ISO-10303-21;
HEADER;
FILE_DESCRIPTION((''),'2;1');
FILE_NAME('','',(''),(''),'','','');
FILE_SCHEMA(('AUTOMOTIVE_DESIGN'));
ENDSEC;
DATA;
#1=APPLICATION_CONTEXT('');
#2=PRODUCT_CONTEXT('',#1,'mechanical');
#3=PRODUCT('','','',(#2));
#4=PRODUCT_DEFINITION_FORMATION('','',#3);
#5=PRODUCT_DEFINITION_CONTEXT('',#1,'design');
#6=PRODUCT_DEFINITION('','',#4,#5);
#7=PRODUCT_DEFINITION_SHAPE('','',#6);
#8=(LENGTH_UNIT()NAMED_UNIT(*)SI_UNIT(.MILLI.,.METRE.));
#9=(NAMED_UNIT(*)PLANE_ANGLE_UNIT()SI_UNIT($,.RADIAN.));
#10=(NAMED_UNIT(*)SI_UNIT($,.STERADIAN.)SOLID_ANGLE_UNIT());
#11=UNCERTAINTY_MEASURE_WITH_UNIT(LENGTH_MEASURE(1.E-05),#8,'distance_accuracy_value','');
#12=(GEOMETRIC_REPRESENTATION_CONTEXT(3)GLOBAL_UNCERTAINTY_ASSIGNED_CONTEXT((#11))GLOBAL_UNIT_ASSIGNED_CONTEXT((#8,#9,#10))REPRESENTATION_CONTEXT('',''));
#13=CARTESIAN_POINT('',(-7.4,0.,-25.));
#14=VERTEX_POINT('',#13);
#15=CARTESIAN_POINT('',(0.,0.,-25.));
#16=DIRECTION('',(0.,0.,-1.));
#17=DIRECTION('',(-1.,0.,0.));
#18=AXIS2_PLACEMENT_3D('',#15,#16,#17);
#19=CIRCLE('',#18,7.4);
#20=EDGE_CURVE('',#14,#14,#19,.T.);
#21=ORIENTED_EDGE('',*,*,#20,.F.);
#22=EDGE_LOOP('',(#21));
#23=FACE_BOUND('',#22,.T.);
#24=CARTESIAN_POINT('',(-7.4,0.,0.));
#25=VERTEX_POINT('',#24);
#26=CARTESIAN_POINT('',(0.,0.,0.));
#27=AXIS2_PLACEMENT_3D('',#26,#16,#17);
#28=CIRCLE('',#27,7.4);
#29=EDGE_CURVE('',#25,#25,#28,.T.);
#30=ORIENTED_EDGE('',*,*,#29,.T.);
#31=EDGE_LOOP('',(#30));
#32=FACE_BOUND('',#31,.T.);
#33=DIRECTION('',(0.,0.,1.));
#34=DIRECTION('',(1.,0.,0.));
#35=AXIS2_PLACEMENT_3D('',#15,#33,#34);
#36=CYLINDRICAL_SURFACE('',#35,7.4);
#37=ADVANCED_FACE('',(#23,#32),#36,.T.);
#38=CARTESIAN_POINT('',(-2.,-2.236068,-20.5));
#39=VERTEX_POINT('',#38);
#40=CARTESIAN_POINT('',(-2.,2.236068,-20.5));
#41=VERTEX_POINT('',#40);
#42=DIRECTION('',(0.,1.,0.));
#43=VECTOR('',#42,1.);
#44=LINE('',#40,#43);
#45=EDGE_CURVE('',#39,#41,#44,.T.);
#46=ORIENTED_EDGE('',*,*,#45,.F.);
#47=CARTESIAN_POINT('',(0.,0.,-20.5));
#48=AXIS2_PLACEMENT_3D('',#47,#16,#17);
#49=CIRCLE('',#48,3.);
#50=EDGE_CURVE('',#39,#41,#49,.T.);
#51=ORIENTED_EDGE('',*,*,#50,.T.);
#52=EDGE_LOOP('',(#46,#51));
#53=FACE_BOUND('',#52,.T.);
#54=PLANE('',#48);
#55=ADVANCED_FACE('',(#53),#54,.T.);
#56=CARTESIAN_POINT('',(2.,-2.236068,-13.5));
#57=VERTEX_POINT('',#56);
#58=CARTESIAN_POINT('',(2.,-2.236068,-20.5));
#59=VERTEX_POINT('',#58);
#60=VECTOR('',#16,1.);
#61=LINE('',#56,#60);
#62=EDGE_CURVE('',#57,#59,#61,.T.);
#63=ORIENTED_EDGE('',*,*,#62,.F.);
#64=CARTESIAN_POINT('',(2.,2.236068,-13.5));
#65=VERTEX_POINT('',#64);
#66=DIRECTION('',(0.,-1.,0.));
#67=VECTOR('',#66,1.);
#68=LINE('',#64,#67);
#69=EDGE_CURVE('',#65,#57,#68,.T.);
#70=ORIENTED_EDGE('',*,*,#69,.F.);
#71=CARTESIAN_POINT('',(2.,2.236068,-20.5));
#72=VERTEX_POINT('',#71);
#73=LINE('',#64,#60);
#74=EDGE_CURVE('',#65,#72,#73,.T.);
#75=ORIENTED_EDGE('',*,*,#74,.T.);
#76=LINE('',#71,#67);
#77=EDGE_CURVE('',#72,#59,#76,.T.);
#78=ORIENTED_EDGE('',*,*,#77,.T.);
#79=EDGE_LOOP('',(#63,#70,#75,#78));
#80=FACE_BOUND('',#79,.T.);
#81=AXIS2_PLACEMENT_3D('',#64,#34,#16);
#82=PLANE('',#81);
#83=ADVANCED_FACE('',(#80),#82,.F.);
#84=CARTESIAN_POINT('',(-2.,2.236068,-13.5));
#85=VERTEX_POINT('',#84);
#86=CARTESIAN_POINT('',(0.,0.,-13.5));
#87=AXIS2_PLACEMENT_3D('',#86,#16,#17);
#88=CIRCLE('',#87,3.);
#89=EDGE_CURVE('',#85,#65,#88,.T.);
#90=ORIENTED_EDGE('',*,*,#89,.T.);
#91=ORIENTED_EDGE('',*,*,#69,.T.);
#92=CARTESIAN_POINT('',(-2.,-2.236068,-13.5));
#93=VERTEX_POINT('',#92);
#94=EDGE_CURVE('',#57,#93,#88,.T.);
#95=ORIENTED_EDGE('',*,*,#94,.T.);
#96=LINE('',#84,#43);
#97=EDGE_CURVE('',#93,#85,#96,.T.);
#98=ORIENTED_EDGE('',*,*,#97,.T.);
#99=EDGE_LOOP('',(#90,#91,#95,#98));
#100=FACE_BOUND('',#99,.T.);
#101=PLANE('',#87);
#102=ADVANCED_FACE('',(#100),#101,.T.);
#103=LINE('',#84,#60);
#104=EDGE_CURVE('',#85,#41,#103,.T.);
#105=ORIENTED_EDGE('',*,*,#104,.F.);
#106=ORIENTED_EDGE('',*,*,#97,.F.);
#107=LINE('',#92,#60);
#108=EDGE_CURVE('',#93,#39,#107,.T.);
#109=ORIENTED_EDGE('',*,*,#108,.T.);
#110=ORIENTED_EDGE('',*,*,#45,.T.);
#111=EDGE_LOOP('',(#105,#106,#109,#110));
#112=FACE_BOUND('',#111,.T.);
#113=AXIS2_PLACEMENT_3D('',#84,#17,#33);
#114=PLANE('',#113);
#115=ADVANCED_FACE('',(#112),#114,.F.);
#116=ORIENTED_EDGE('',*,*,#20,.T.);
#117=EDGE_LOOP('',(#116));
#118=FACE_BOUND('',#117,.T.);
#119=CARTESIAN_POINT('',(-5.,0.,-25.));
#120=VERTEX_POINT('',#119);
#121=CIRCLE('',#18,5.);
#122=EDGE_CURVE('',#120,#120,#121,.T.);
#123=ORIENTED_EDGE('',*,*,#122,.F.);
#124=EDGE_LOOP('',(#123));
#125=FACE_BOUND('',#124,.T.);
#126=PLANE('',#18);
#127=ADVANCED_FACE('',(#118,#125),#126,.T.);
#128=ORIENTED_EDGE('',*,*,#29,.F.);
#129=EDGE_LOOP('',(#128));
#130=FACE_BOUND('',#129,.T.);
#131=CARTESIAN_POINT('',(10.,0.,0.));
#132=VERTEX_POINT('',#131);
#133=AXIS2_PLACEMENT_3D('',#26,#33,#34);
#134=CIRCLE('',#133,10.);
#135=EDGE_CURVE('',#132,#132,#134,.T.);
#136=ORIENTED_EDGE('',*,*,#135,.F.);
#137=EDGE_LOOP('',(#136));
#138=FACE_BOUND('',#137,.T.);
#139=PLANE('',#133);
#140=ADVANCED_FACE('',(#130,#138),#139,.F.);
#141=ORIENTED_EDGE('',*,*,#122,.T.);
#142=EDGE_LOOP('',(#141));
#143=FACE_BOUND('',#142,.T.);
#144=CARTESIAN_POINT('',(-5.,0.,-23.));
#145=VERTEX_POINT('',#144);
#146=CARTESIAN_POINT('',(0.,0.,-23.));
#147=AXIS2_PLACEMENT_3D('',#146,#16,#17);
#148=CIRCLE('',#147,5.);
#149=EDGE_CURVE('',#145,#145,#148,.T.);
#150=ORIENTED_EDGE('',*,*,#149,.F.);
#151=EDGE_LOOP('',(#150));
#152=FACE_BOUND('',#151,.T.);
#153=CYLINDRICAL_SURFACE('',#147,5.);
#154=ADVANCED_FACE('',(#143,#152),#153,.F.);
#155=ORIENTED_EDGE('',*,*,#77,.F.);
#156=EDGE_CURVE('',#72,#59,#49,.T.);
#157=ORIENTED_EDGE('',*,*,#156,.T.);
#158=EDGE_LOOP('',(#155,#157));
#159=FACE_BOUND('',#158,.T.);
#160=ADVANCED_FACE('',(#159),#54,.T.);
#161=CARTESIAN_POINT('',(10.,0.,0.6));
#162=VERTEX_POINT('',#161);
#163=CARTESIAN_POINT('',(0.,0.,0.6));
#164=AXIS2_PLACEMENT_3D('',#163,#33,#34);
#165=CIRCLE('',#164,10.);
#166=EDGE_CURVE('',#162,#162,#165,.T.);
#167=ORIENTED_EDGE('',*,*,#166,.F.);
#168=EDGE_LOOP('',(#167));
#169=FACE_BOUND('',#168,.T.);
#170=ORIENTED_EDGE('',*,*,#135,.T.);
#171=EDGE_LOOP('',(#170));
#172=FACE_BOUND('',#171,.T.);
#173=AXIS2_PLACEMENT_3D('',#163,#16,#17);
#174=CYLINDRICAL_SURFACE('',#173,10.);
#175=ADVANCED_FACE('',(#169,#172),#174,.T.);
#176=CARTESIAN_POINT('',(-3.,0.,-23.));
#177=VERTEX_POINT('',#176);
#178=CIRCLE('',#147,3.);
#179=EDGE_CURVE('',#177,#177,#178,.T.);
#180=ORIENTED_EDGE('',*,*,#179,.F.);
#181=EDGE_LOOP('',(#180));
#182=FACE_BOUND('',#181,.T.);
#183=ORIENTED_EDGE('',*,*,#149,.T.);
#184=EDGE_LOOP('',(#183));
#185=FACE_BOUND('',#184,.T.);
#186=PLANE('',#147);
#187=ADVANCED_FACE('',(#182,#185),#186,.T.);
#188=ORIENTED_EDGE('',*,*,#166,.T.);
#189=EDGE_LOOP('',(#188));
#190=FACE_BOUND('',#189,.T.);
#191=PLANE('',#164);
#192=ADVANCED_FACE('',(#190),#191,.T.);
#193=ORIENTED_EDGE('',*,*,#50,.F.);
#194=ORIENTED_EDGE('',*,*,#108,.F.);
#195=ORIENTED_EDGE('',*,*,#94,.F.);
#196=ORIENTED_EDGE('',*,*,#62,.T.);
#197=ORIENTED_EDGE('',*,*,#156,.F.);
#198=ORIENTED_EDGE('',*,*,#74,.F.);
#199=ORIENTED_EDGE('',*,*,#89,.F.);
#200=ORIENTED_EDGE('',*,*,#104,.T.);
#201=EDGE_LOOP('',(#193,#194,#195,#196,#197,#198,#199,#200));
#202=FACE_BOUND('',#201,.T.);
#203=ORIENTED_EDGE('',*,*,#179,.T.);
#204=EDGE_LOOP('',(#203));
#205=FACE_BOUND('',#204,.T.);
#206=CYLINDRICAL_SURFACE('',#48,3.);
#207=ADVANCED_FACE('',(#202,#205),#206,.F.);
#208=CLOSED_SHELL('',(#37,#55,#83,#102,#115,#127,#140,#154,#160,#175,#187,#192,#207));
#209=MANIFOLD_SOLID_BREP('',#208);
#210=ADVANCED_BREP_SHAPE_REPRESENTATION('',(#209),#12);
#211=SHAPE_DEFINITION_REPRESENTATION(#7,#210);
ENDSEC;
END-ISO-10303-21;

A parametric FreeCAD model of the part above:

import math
import FreeCAD as App
import Part
import Sketcher
Q = App.Units.Quantity

doc = App.newDocument("Part")
body = doc.addObject("PartDesign::Body", "Body")

# Sketch on XY plane
sketch1 = body.newObject("Sketcher::SketchObject", "Sketch")
sketch1.AttachmentSupport = (doc.getObject("XY_Plane"), [""])
sketch1.MapMode = "FlatFace"
sketch1.addGeometry(Part.Circle(App.Vector(0, 0, 0), App.Vector(0, 0, 1), 10), False)
sketch1.addConstraint([
    Sketcher.Constraint("Coincident", 0, 3, -1, 1),
    Sketcher.Constraint("Diameter", 0, Q("20 mm")),
])
pad1 = body.newObject("PartDesign::Pad", "Pad")
pad1.Profile = sketch1
pad1.Length = 0.6

# Sketch on XY plane
sketch2 = body.newObject("Sketcher::SketchObject", "Sketch001")
sketch2.AttachmentSupport = (doc.getObject("XY_Plane"), [""])
sketch2.MapMode = "FlatFace"
sketch2.addGeometry(Part.Circle(App.Vector(0, 0, 0), App.Vector(0, 0, 1), 7), False)
sketch2.addConstraint([
    Sketcher.Constraint("Coincident", 0, 3, -1, 1),
    Sketcher.Constraint("Diameter", 0, Q("14.8 mm")),
])
pad2 = body.newObject("PartDesign::Pad", "Pad001")
pad2.Profile = sketch2
pad2.Length = 25
pad2.Reversed = True

# Sketch on XY plane
sketch3 = body.newObject("Sketcher::SketchObject", "Sketch002")
sketch3.AttachmentSupport = (doc.getObject("XY_Plane"), [""])
sketch3.MapMode = "FlatFace"
sketch3.AttachmentOffset = App.Placement(App.Vector(0, 0, -25), App.Rotation())
sketch3.addGeometry(Part.Circle(App.Vector(0, 0, 0), App.Vector(0, 0, 1), 5), False)
sketch3.addConstraint([
    Sketcher.Constraint("Coincident", 0, 3, -1, 1),
    Sketcher.Constraint("Diameter", 0, Q("10 mm")),
])
pocket1 = body.newObject("PartDesign::Pocket", "Pocket")
pocket1.Profile = sketch3
pocket1.Length = 2
pocket1.Reversed = True

# Sketch on XY plane
sketch4 = body.newObject("Sketcher::SketchObject", "Sketch003")
sketch4.AttachmentSupport = (doc.getObject("XY_Plane"), [""])
sketch4.MapMode = "FlatFace"
sketch4.AttachmentOffset = App.Placement(App.Vector(0, 0, -23), App.Rotation())
sketch4.addGeometry(Part.Circle(App.Vector(0, 0, 0), App.Vector(0, 0, 1), 3), False)
sketch4.addConstraint([
    Sketcher.Constraint("Coincident", 0, 3, -1, 1),
    Sketcher.Constraint("Diameter", 0, Q("6 mm")),
])
pocket2 = body.newObject("PartDesign::Pocket", "Pocket001")
pocket2.Profile = sketch4
pocket2.Length = 2.5
pocket2.Reversed = True

# Sketch on XY plane
sketch5 = body.newObject("Sketcher::SketchObject", "Sketch004")
sketch5.AttachmentSupport = (doc.getObject("XY_Plane"), [""])
sketch5.MapMode = "FlatFace"
sketch5.AttachmentOffset = App.Placement(App.Vector(0, 0, -20.5), App.Rotation())
sketch5.addGeometry([
    Part.LineSegment(App.Vector(2, 2.2, 0), App.Vector(2, -2.2, 0)),
    Part.ArcOfCircle(Part.Circle(App.Vector(0, 0, 0), App.Vector(0, 0, 1), 3), math.radians(-132), math.radians(-48)),
    Part.LineSegment(App.Vector(-2, -2.2, 0), App.Vector(-2, 2.2, 0)),
    Part.ArcOfCircle(Part.Circle(App.Vector(0, 0, 0), App.Vector(0, 0, 1), 3), math.radians(48), math.radians(132)),
], False)
sketch5.addConstraint([
    Sketcher.Constraint("Coincident", 0, 2, 1, 2),
    Sketcher.Constraint("Coincident", 1, 1, 2, 1),
    Sketcher.Constraint("Coincident", 2, 2, 3, 2),
    Sketcher.Constraint("Coincident", 3, 1, 0, 1),
    Sketcher.Constraint("Vertical", 0),
    Sketcher.Constraint("Vertical", 2),
    Sketcher.Constraint("Coincident", 1, 3, -1, 1),
    Sketcher.Constraint("Coincident", 3, 3, -1, 1),
    Sketcher.Constraint("Equal", 1, 3),
    Sketcher.Constraint("Horizontal", 0, 2, 1, 1),
    Sketcher.Constraint("Radius", 1, Q("3 mm")),
    Sketcher.Constraint("DistanceX", -1, 1, 0, 2, Q("2 mm")),
])
pocket3 = body.newObject("PartDesign::Pocket", "Pocket002")
pocket3.Profile = sketch5
pocket3.Length = 7
pocket3.Reversed = True

doc.recompute()
